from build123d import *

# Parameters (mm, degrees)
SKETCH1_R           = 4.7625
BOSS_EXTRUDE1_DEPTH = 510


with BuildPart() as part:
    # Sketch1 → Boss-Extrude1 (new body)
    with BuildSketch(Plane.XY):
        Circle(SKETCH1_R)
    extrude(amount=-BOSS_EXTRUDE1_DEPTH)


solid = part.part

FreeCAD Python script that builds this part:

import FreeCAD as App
import Part
import Sketcher
Q = App.Units.Quantity

doc = App.newDocument("Part")
body = doc.addObject("PartDesign::Body", "Body")

# Sketch on XY plane
sketch1 = body.newObject("Sketcher::SketchObject", "Sketch")
sketch1.AttachmentSupport = (doc.getObject("XY_Plane"), [""])
sketch1.MapMode = "FlatFace"
sketch1.addGeometry(Part.Circle(App.Vector(0, 0, 0), App.Vector(0, 0, 1), 4.7625), False)
sketch1.addConstraint([
    Sketcher.Constraint("Coincident", 0, 3, -1, 1),
    Sketcher.Constraint("Diameter", 0, Q("9.525 mm")),
])
pad1 = body.newObject("PartDesign::Pad", "Pad")
pad1.Profile = sketch1
pad1.Length = 510
pad1.Reversed = True

doc.recompute()
